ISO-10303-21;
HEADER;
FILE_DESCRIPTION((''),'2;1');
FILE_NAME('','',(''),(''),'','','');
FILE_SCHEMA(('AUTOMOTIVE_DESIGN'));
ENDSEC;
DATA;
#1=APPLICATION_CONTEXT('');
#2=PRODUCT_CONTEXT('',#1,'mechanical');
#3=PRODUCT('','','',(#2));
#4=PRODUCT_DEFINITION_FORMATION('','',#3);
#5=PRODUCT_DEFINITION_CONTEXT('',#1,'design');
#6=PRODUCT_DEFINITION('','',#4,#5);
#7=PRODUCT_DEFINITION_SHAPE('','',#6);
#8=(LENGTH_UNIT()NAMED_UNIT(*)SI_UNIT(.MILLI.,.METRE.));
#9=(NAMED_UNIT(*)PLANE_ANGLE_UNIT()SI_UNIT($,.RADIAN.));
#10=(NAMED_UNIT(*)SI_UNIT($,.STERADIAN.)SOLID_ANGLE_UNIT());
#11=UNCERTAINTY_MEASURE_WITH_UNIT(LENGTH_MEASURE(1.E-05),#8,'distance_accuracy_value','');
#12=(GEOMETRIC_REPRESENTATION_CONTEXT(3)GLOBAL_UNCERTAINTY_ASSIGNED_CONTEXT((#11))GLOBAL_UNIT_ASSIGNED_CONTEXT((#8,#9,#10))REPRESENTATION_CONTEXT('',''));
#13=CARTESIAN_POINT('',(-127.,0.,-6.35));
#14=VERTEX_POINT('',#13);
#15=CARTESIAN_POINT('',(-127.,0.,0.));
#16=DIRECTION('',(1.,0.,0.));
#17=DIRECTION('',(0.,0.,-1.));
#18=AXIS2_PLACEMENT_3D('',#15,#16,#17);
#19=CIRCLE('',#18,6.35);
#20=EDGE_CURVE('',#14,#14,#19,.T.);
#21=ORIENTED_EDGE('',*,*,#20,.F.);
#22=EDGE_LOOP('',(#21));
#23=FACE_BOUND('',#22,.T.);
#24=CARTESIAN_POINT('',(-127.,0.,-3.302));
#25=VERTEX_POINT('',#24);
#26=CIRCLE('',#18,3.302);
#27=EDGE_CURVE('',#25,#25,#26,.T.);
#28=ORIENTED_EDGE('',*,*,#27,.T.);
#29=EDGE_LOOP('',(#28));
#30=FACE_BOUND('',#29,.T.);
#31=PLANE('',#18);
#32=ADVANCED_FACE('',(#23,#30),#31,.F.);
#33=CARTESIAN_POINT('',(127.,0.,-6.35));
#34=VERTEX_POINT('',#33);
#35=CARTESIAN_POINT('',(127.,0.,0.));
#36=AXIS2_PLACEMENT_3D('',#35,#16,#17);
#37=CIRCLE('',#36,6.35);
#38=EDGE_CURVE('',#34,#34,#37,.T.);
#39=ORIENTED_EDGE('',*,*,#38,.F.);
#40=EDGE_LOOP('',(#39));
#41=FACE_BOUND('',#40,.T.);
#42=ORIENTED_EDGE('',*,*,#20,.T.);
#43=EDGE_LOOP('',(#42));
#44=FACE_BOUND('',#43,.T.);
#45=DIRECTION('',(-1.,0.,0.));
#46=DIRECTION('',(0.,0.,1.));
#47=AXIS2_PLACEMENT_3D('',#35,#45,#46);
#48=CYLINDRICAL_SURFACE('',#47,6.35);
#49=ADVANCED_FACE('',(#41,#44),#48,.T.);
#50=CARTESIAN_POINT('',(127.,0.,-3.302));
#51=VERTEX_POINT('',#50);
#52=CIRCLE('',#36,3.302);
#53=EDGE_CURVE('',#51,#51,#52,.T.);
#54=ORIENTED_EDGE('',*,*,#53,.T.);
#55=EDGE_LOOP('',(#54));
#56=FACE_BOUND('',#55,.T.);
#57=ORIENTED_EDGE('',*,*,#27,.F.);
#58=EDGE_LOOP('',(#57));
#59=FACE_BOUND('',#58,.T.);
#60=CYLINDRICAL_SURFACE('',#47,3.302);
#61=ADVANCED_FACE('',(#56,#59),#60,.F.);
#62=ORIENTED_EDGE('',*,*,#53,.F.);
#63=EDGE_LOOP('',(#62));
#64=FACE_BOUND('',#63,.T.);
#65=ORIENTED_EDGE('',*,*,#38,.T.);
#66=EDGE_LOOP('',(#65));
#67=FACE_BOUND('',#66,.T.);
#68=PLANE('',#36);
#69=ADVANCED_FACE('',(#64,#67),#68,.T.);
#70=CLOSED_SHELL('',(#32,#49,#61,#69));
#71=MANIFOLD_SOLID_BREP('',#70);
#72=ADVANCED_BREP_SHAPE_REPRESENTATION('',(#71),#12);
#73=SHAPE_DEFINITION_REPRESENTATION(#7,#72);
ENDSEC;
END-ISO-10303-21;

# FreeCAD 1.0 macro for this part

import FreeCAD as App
import Part
import Sketcher
Q = App.Units.Quantity

doc = App.newDocument("Part")
body = doc.addObject("PartDesign::Body", "Body")

sketch1 = body.newObject("Sketcher::SketchObject", "Sketch")
sketch1.AttachmentSupport = (doc.getObject("YZ_Plane"), [""])
sketch1.MapMode = "FlatFace"
sketch1.addGeometry([
    Part.Circle(App.Vector(0, 0, 0), App.Vector(0, 0, 1), 6.35),
    Part.Circle(App.Vector(0, 0, 0), App.Vector(0, 0, 1), 3.302),
], False)
sketch1.addConstraint([
    Sketcher.Constraint("Coincident", 0, 3, -1, 1),
    Sketcher.Constraint("Coincident", 1, 3, -1, 1),
    Sketcher.Constraint("Diameter", 0, Q("0.5 in")),
    Sketcher.Constraint("Diameter", 1, Q("0.26 in")),
])
pad1 = body.newObject("PartDesign::Pad", "Pad")
pad1.Profile = sketch1
pad1.Length = Q("10 in")
pad1.Midplane = True

doc.recompute()
